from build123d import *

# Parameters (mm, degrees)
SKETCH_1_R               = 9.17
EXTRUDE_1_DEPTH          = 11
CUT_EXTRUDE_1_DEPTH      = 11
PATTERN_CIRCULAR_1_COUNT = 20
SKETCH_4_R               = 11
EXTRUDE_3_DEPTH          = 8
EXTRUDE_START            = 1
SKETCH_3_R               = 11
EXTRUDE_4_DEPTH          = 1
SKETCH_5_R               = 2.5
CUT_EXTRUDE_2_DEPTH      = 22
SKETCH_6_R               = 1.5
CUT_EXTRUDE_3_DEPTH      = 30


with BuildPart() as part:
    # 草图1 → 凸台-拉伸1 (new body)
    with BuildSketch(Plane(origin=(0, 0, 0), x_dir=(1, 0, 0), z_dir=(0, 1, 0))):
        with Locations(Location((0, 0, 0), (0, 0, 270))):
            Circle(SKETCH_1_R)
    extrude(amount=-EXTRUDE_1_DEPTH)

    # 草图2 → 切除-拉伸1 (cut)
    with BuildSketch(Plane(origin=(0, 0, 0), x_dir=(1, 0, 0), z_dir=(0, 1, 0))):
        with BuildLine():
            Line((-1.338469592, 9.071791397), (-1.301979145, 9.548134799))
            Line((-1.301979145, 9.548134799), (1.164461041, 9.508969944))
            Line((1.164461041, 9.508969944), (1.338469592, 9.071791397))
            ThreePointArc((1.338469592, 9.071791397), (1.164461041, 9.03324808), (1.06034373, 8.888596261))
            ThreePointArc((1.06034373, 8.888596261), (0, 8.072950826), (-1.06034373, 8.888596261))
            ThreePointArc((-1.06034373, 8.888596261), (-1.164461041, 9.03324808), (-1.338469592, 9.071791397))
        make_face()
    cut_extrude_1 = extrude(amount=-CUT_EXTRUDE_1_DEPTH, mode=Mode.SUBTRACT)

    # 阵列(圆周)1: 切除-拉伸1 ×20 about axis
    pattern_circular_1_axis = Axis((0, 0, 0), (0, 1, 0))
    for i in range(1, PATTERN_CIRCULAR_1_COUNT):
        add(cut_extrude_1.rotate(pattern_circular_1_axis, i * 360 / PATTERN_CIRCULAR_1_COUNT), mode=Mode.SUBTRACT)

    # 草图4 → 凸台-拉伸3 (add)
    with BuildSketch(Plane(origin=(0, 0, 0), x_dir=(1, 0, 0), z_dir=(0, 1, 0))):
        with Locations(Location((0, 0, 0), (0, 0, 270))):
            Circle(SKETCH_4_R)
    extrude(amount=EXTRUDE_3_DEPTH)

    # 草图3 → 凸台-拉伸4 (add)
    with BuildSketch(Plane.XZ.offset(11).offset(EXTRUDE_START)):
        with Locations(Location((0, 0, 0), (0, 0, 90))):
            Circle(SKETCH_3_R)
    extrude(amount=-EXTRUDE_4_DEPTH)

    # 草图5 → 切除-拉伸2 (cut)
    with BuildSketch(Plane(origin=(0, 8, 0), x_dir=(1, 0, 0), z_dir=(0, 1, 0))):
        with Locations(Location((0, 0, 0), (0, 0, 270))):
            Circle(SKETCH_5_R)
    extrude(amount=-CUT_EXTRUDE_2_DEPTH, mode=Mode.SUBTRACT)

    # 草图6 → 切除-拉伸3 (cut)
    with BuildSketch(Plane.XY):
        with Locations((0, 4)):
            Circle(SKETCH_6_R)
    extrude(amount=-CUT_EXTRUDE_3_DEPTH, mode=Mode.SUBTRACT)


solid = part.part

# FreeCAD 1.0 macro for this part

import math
import FreeCAD as App
import Part
import Sketcher

V = App.Vector
Q = App.Units.Quantity

doc = App.newDocument("Part")
params = doc.addObject("Spreadsheet::Sheet", "Params")
for row, (alias, value) in enumerate([
    ("sketch1_diameter", "18.34 mm"),
    ("pad1_length", "11 mm"),
    ("sketch2_radius", "0.25 mm"),
    ("pocket1_length", "11 mm"),
    ("sketch3_diameter", "22 mm"),
    ("pad2_length", "8 mm"),
    ("sketch4_diameter", "22 mm"),
    ("pad3_length", "1 mm"),
    ("sketch5_diameter", "5 mm"),
    ("pocket2_length", "22 mm"),
    ("sketch6_diameter", "3 mm"),
    ("pocket3_length", "30 mm"),
], start=1):
    params.set(f"A{row}", alias)
    params.set(f"B{row}", "=" + value)
    params.setAlias(f"B{row}", alias)

body = doc.addObject("PartDesign::Body", "Body")

# Sketch on XZ plane
sketch1 = doc.addObject("Sketcher::SketchObject", "Sketch")
body.addObject(sketch1)
sketch1.AttachmentSupport = (doc.XZ_Plane, [""])
sketch1.MapMode = "FlatFace"
sketch1.addGeometry(Part.Circle(V(0, 0, 0), V(0, 0, 1), 9), False)
sketch1.addConstraint([
    Sketcher.Constraint("Coincident", 0, 3, -1, 1),
    Sketcher.Constraint("Diameter", 0, Q("18.34 mm")),
])
sketch1.setExpression("Constraints[1]", "Params.sketch1_diameter")
pad1 = doc.addObject("PartDesign::Pad", "Pad")
body.addObject(pad1)
pad1.Profile = sketch1
pad1.setExpression("Length", "Params.pad1_length")

# Sketch on XZ plane
sketch2 = doc.addObject("Sketcher::SketchObject", "Sketch001")
body.addObject(sketch2)
sketch2.AttachmentSupport = (doc.XZ_Plane, [""])
sketch2.MapMode = "FlatFace"
sketch2.addGeometry([
    Part.LineSegment(V(-1.3, -9.55, 0), V(-1.34, -9.07, 0)),  # 0
    Part.ArcOfCircle(Part.Circle(V(-1.3, -8.82, 0), V(0, 0, 1), 0.25), math.radians(-98), math.radians(-15)),  # 1
    Part.ArcOfCircle(Part.Circle(V(0, -9.17, 0), V(0, 0, 1), 1.1), math.radians(15), math.radians(165)),  # 2
    Part.ArcOfCircle(Part.Circle(V(1.3, -8.82, 0), V(0, 0, 1), 0.25), math.radians(-165), math.radians(-82)),  # 3
    Part.LineSegment(V(1.34, -9.07, 0), V(1.16, -9.51, 0)),  # 4
    Part.LineSegment(V(1.16, -9.51, 0), V(-1.3, -9.55, 0)),  # 5
], False)
sketch2.addConstraint([
    Sketcher.Constraint("Coincident", 0, 2, 1, 1),
    Sketcher.Constraint("Tangent", 1, 2, 2, 2),
    Sketcher.Constraint("Tangent", 2, 1, 3, 1),
    Sketcher.Constraint("Coincident", 3, 2, 4, 1),
    Sketcher.Constraint("Coincident", 4, 2, 5, 1),
    Sketcher.Constraint("Coincident", 5, 2, 0, 1),
    Sketcher.Constraint("Equal", 1, 3),
    Sketcher.Constraint("Symmetric", 1, 3, 3, 3, -2),
    Sketcher.Constraint("Horizontal", 0, 2, 3, 2),
    Sketcher.Constraint("Vertical", 1, 3, 5, 2),
    Sketcher.Constraint("Radius", 1, Q("0.25 mm")),
    Sketcher.Constraint("DistanceY", 2, 3, -1, 1, Q("9.17 mm")),
    Sketcher.Constraint("Radius", 2, Q("1.097049 mm")),
    Sketcher.Constraint("DistanceY", 4, 2, 3, 3, Q("0.684501 mm")),
    Sketcher.Constraint("Distance", 0, Q("0.477739 mm")),
    Sketcher.Constraint("Distance", 5, Q("2.466751 mm")),
    Sketcher.Constraint("DistanceX", 1, 3, -1, 1, Q("1.301979 mm")),
    Sketcher.Constraint("DistanceX", 0, 2, -1, 1, Q("1.33847 mm")),
])
sketch2.setExpression("Constraints[10]", "Params.sketch2_radius")
pocket1 = doc.addObject("PartDesign::Pocket", "Pocket")
body.addObject(pocket1)
pocket1.Profile = sketch2
pocket1.setExpression("Length", "Params.pocket1_length")
pocket1.Reversed = True
doc.recompute()

polarpattern = doc.addObject("PartDesign::PolarPattern", "PolarPattern")
body.addObject(polarpattern)
polarpattern.Originals = [pocket1]
polarpattern.Axis = (doc.Y_Axis, [""])
polarpattern.Angle = 360
polarpattern.Occurrences = 20
body.Tip = polarpattern

# Sketch on XZ plane
sketch3 = doc.addObject("Sketcher::SketchObject", "Sketch002")
body.addObject(sketch3)
sketch3.AttachmentSupport = (doc.XZ_Plane, [""])
sketch3.MapMode = "FlatFace"
sketch3.addGeometry(Part.Circle(V(0, 0, 0), V(0, 0, 1), 11), False)
sketch3.addConstraint([
    Sketcher.Constraint("Coincident", 0, 3, -1, 1),
    Sketcher.Constraint("Diameter", 0, Q("22 mm")),
])
sketch3.setExpression("Constraints[1]", "Params.sketch3_diameter")
pad2 = doc.addObject("PartDesign::Pad", "Pad001")
body.addObject(pad2)
pad2.Profile = sketch3
pad2.setExpression("Length", "Params.pad2_length")
pad2.Reversed = True

# Sketch on XZ plane
sketch4 = doc.addObject("Sketcher::SketchObject", "Sketch003")
body.addObject(sketch4)
sketch4.AttachmentSupport = (doc.XZ_Plane, [""])
sketch4.MapMode = "FlatFace"
sketch4.AttachmentOffset = App.Placement(V(0, 0, 12), App.Rotation())
sketch4.addGeometry(Part.Circle(V(0, 0, 0), V(0, 0, 1), 11), False)
sketch4.addConstraint([
    Sketcher.Constraint("Coincident", 0, 3, -1, 1),
    Sketcher.Constraint("Diameter", 0, Q("22 mm")),
])
sketch4.setExpression("Constraints[1]", "Params.sketch4_diameter")
pad3 = doc.addObject("PartDesign::Pad", "Pad002")
body.addObject(pad3)
pad3.Profile = sketch4
pad3.setExpression("Length", "Params.pad3_length")
pad3.Reversed = True

# Sketch on XZ plane
sketch5 = doc.addObject("Sketcher::SketchObject", "Sketch004")
body.addObject(sketch5)
sketch5.AttachmentSupport = (doc.XZ_Plane, [""])
sketch5.MapMode = "FlatFace"
sketch5.AttachmentOffset = App.Placement(V(0, 0, -8), App.Rotation())
sketch5.addGeometry(Part.Circle(V(0, 0, 0), V(0, 0, 1), 2.5), False)
sketch5.addConstraint([
    Sketcher.Constraint("Coincident", 0, 3, -1, 1),
    Sketcher.Constraint("Diameter", 0, Q("5 mm")),
])
sketch5.setExpression("Constraints[1]", "Params.sketch5_diameter")
pocket2 = doc.addObject("PartDesign::Pocket", "Pocket001")
body.addObject(pocket2)
pocket2.Profile = sketch5
pocket2.setExpression("Length", "Params.pocket2_length")
pocket2.Reversed = True

# Sketch on XY plane
sketch6 = doc.addObject("Sketcher::SketchObject", "Sketch005")
body.addObject(sketch6)
sketch6.AttachmentSupport = (doc.XY_Plane, [""])
sketch6.MapMode = "FlatFace"
sketch6.addGeometry(Part.Circle(V(0, 4, 0), V(0, 0, 1), 1.5), False)
sketch6.addConstraint([
    Sketcher.Constraint("PointOnObject", 0, 3, -2),
    Sketcher.Constraint("Diameter", 0, Q("3 mm")),
    Sketcher.Constraint("DistanceY", -1, 1, 0, 3, Q("4 mm")),
])
sketch6.setExpression("Constraints[1]", "Params.sketch6_diameter")
pocket3 = doc.addObject("PartDesign::Pocket", "Pocket002")
body.addObject(pocket3)
pocket3.Profile = sketch6
pocket3.setExpression("Length", "Params.pocket3_length")

doc.recompute()
